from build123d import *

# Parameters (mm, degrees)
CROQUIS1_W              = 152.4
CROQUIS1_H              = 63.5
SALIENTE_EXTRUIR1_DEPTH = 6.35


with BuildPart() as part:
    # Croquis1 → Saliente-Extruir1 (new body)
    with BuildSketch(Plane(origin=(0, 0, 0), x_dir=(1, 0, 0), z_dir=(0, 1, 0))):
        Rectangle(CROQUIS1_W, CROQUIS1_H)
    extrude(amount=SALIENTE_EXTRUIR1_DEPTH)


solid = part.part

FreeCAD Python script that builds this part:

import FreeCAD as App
import Part
import Sketcher

V = App.Vector
Q = App.Units.Quantity


def add_polygon(sketch, points):
    """Adds a closed chain of lines whose ends are joined by coincident constraints."""
    first, n = sketch.GeometryCount, len(points)
    for a, b in zip(points, points[1:] + points[:1]):
        sketch.addGeometry(Part.LineSegment(App.Vector(*a, 0), App.Vector(*b, 0)), False)
    for i in range(n):
        sketch.addConstraint(Sketcher.Constraint("Coincident", first + i, 2, first + (i + 1) % n, 1))

doc = App.newDocument("Part")
body = doc.addObject("PartDesign::Body", "Body")

# Sketch on XZ plane
sketch1 = body.newObject("Sketcher::SketchObject", "Sketch")
sketch1.AttachmentSupport = (doc.getObject("XZ_Plane"), [""])
sketch1.MapMode = "FlatFace"
add_polygon(sketch1, [(-76, -32), (-76, 32), (76, 32), (76, -32)])  # lines 0-3
sketch1.addConstraint(Sketcher.Constraint("Vertical", 0))
sketch1.addConstraint(Sketcher.Constraint("Horizontal", 1))
sketch1.addConstraint(Sketcher.Constraint("Vertical", 2))
sketch1.addConstraint(Sketcher.Constraint("Horizontal", 3))
sketch1.addConstraint(Sketcher.Constraint("Symmetric", 0, 2, 2, 2, -1, 1))
sketch1.addConstraint(Sketcher.Constraint("DistanceX", 1, 1, 1, 2, Q("6 in")))
sketch1.addConstraint(Sketcher.Constraint("DistanceY", 0, 1, 0, 2, Q("2.5 in")))
pad1 = body.newObject("PartDesign::Pad", "Pad")
pad1.Profile = sketch1
pad1.Length = Q("0.25 in")
pad1.Reversed = True

doc.recompute()
